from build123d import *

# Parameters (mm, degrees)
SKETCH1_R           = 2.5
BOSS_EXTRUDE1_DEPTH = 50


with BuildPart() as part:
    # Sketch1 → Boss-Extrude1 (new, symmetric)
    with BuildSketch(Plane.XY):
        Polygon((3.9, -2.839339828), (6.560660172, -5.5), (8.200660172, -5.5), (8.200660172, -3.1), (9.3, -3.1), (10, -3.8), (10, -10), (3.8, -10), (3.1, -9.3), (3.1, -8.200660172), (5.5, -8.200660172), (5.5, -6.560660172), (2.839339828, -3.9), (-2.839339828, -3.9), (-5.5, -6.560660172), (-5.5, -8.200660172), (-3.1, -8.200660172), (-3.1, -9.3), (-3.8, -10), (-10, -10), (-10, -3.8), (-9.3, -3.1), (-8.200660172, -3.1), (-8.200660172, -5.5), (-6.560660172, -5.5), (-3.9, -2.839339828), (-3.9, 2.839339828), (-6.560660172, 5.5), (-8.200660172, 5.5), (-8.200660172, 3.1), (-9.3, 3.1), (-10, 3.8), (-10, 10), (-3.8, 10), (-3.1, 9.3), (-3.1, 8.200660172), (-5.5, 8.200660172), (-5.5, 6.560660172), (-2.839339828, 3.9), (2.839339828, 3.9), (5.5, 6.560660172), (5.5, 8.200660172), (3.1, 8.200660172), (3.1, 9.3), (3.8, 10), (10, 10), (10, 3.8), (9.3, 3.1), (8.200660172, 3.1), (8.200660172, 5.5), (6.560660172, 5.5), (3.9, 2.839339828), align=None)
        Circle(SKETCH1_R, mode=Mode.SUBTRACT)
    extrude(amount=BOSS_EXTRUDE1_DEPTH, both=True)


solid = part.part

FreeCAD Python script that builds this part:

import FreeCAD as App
import Part
import Sketcher

V = App.Vector
Q = App.Units.Quantity

doc = App.newDocument("Part")
body = doc.addObject("PartDesign::Body", "Body")

# Sketch on XY plane
sketch1 = body.newObject("Sketcher::SketchObject", "Sketch")
sketch1.AttachmentSupport = (doc.getObject("XY_Plane"), [""])
sketch1.MapMode = "FlatFace"
sketch1.addGeometry(Part.LineSegment(V(6.6, -5.5, 0), V(3.9, -2.8, 0)), False)
sketch1.addGeometry(Part.LineSegment(V(3.9, -2.8, 0), V(3.9, 2.8, 0)), False)
sketch1.addGeometry(Part.LineSegment(V(3.9, 2.8, 0), V(6.6, 5.5, 0)), False)
sketch1.addGeometry(Part.LineSegment(V(6.6, 5.5, 0), V(8.2, 5.5, 0)), False)
sketch1.addGeometry(Part.LineSegment(V(8.2, 5.5, 0), V(8.2, 3.1, 0)), False)
sketch1.addGeometry(Part.LineSegment(V(8.2, 3.1, 0), V(9.3, 3.1, 0)), False)
sketch1.addGeometry(Part.LineSegment(V(9.3, 3.1, 0), V(10, 3.8, 0)), False)
sketch1.addGeometry(Part.LineSegment(V(10, 3.8, 0), V(10, 10, 0)), False)
sketch1.addGeometry(Part.LineSegment(V(10, 10, 0), V(3.8, 10, 0)), False)
sketch1.addGeometry(Part.LineSegment(V(3.8, 10, 0), V(3.1, 9.3, 0)), False)
sketch1.addGeometry(Part.LineSegment(V(3.1, 9.3, 0), V(3.1, 8.2, 0)), False)
sketch1.addGeometry(Part.LineSegment(V(3.1, 8.2, 0), V(5.5, 8.2, 0)), False)
sketch1.addGeometry(Part.LineSegment(V(5.5, 8.2, 0), V(5.5, 6.6, 0)), False)
sketch1.addGeometry(Part.LineSegment(V(5.5, 6.6, 0), V(2.8, 3.9, 0)), False)
sketch1.addGeometry(Part.LineSegment(V(2.8, 3.9, 0), V(-2.8, 3.9, 0)), False)
sketch1.addGeometry(Part.LineSegment(V(-2.8, 3.9, 0), V(-5.5, 6.6, 0)), False)
sketch1.addGeometry(Part.LineSegment(V(-5.5, 6.6, 0), V(-5.5, 8.2, 0)), False)
sketch1.addGeometry(Part.LineSegment(V(-5.5, 8.2, 0), V(-3.1, 8.2, 0)), False)
sketch1.addGeometry(Part.LineSegment(V(-3.1, 8.2, 0), V(-3.1, 9.3, 0)), False)
sketch1.addGeometry(Part.LineSegment(V(-3.1, 9.3, 0), V(-3.8, 10, 0)), False)
sketch1.addGeometry(Part.LineSegment(V(-3.8, 10, 0), V(-10, 10, 0)), False)
sketch1.addGeometry(Part.LineSegment(V(-10, 10, 0), V(-10, 3.8, 0)), False)
sketch1.addGeometry(Part.LineSegment(V(-10, 3.8, 0), V(-9.3, 3.1, 0)), False)
sketch1.addGeometry(Part.LineSegment(V(-9.3, 3.1, 0), V(-8.2, 3.1, 0)), False)
sketch1.addGeometry(Part.LineSegment(V(-8.2, 3.1, 0), V(-8.2, 5.5, 0)), False)
sketch1.addGeometry(Part.LineSegment(V(-8.2, 5.5, 0), V(-6.6, 5.5, 0)), False)
sketch1.addGeometry(Part.LineSegment(V(-6.6, 5.5, 0), V(-3.9, 2.8, 0)), False)
sketch1.addGeometry(Part.LineSegment(V(-3.9, 2.8, 0), V(-3.9, -2.8, 0)), False)
sketch1.addGeometry(Part.LineSegment(V(-3.9, -2.8, 0), V(-6.6, -5.5, 0)), False)
sketch1.addGeometry(Part.LineSegment(V(-6.6, -5.5, 0), V(-8.2, -5.5, 0)), False)
sketch1.addGeometry(Part.LineSegment(V(-8.2, -5.5, 0), V(-8.2, -3.1, 0)), False)
sketch1.addGeometry(Part.LineSegment(V(-8.2, -3.1, 0), V(-9.3, -3.1, 0)), False)
sketch1.addGeometry(Part.LineSegment(V(-9.3, -3.1, 0), V(-10, -3.8, 0)), False)
sketch1.addGeometry(Part.LineSegment(V(-10, -3.8, 0), V(-10, -10, 0)), False)
sketch1.addGeometry(Part.LineSegment(V(-10, -10, 0), V(-3.8, -10, 0)), False)
sketch1.addGeometry(Part.LineSegment(V(-3.8, -10, 0), V(-3.1, -9.3, 0)), False)
sketch1.addGeometry(Part.LineSegment(V(-3.1, -9.3, 0), V(-3.1, -8.2, 0)), False)
sketch1.addGeometry(Part.LineSegment(V(-3.1, -8.2, 0), V(-5.5, -8.2, 0)), False)
sketch1.addGeometry(Part.LineSegment(V(-5.5, -8.2, 0), V(-5.5, -6.6, 0)), False)
sketch1.addGeometry(Part.LineSegment(V(-5.5, -6.6, 0), V(-2.8, -3.9, 0)), False)
sketch1.addGeometry(Part.LineSegment(V(-2.8, -3.9, 0), V(2.8, -3.9, 0)), False)
sketch1.addGeometry(Part.LineSegment(V(2.8, -3.9, 0), V(5.5, -6.6, 0)), False)
sketch1.addGeometry(Part.LineSegment(V(5.5, -6.6, 0), V(5.5, -8.2, 0)), False)
sketch1.addGeometry(Part.LineSegment(V(5.5, -8.2, 0), V(3.1, -8.2, 0)), False)
sketch1.addGeometry(Part.LineSegment(V(3.1, -8.2, 0), V(3.1, -9.3, 0)), False)
sketch1.addGeometry(Part.LineSegment(V(3.1, -9.3, 0), V(3.8, -10, 0)), False)
sketch1.addGeometry(Part.LineSegment(V(3.8, -10, 0), V(10, -10, 0)), False)
sketch1.addGeometry(Part.LineSegment(V(10, -10, 0), V(10, -3.8, 0)), False)
sketch1.addGeometry(Part.LineSegment(V(10, -3.8, 0), V(9.3, -3.1, 0)), False)
sketch1.addGeometry(Part.LineSegment(V(9.3, -3.1, 0), V(8.2, -3.1, 0)), False)
sketch1.addGeometry(Part.LineSegment(V(8.2, -3.1, 0), V(8.2, -5.5, 0)), False)
sketch1.addGeometry(Part.LineSegment(V(8.2, -5.5, 0), V(6.6, -5.5, 0)), False)
sketch1.addGeometry(Part.Circle(V(0, 0, 0), V(0, 0, 1), 2.5), False)
sketch1.addConstraint(Sketcher.Constraint("Coincident", 0, 2, 1, 1))
sketch1.addConstraint(Sketcher.Constraint("Coincident", 1, 2, 2, 1))
sketch1.addConstraint(Sketcher.Constraint("Coincident", 2, 2, 3, 1))
sketch1.addConstraint(Sketcher.Constraint("Coincident", 3, 2, 4, 1))
sketch1.addConstraint(Sketcher.Constraint("Coincident", 4, 2, 5, 1))
sketch1.addConstraint(Sketcher.Constraint("Coincident", 5, 2, 6, 1))
sketch1.addConstraint(Sketcher.Constraint("Coincident", 6, 2, 7, 1))
sketch1.addConstraint(Sketcher.Constraint("Coincident", 7, 2, 8, 1))
sketch1.addConstraint(Sketcher.Constraint("Coincident", 8, 2, 9, 1))
sketch1.addConstraint(Sketcher.Constraint("Coincident", 9, 2, 10, 1))
sketch1.addConstraint(Sketcher.Constraint("Coincident", 10, 2, 11, 1))
sketch1.addConstraint(Sketcher.Constraint("Coincident", 11, 2, 12, 1))
sketch1.addConstraint(Sketcher.Constraint("Coincident", 12, 2, 13, 1))
sketch1.addConstraint(Sketcher.Constraint("Coincident", 13, 2, 14, 1))
sketch1.addConstraint(Sketcher.Constraint("Coincident", 14, 2, 15, 1))
sketch1.addConstraint(Sketcher.Constraint("Coincident", 15, 2, 16, 1))
sketch1.addConstraint(Sketcher.Constraint("Coincident", 16, 2, 17, 1))
sketch1.addConstraint(Sketcher.Constraint("Coincident", 17, 2, 18, 1))
sketch1.addConstraint(Sketcher.Constraint("Coincident", 18, 2, 19, 1))
sketch1.addConstraint(Sketcher.Constraint("Coincident", 19, 2, 20, 1))
sketch1.addConstraint(Sketcher.Constraint("Coincident", 20, 2, 21, 1))
sketch1.addConstraint(Sketcher.Constraint("Coincident", 21, 2, 22, 1))
sketch1.addConstraint(Sketcher.Constraint("Coincident", 22, 2, 23, 1))
sketch1.addConstraint(Sketcher.Constraint("Coincident", 23, 2, 24, 1))
sketch1.addConstraint(Sketcher.Constraint("Coincident", 24, 2, 25, 1))
sketch1.addConstraint(Sketcher.Constraint("Coincident", 25, 2, 26, 1))
sketch1.addConstraint(Sketcher.Constraint("Coincident", 26, 2, 27, 1))
sketch1.addConstraint(Sketcher.Constraint("Coincident", 27, 2, 28, 1))
sketch1.addConstraint(Sketcher.Constraint("Coincident", 28, 2, 29, 1))
sketch1.addConstraint(Sketcher.Constraint("Coincident", 29, 2, 30, 1))
sketch1.addConstraint(Sketcher.Constraint("Coincident", 30, 2, 31, 1))
sketch1.addConstraint(Sketcher.Constraint("Coincident", 31, 2, 32, 1))
sketch1.addConstraint(Sketcher.Constraint("Coincident", 32, 2, 33, 1))
sketch1.addConstraint(Sketcher.Constraint("Coincident", 33, 2, 34, 1))
sketch1.addConstraint(Sketcher.Constraint("Coincident", 34, 2, 35, 1))
sketch1.addConstraint(Sketcher.Constraint("Coincident", 35, 2, 36, 1))
sketch1.addConstraint(Sketcher.Constraint("Coincident", 36, 2, 37, 1))
sketch1.addConstraint(Sketcher.Constraint("Coincident", 37, 2, 38, 1))
sketch1.addConstraint(Sketcher.Constraint("Coincident", 38, 2, 39, 1))
sketch1.addConstraint(Sketcher.Constraint("Coincident", 39, 2, 40, 1))
sketch1.addConstraint(Sketcher.Constraint("Coincident", 40, 2, 41, 1))
sketch1.addConstraint(Sketcher.Constraint("Coincident", 41, 2, 42, 1))
sketch1.addConstraint(Sketcher.Constraint("Coincident", 42, 2, 43, 1))
sketch1.addConstraint(Sketcher.Constraint("Coincident", 43, 2, 44, 1))
sketch1.addConstraint(Sketcher.Constraint("Coincident", 44, 2, 45, 1))
sketch1.addConstraint(Sketcher.Constraint("Coincident", 45, 2, 46, 1))
sketch1.addConstraint(Sketcher.Constraint("Coincident", 46, 2, 47, 1))
sketch1.addConstraint(Sketcher.Constraint("Coincident", 47, 2, 48, 1))
sketch1.addConstraint(Sketcher.Constraint("Coincident", 48, 2, 49, 1))
sketch1.addConstraint(Sketcher.Constraint("Coincident", 49, 2, 50, 1))
sketch1.addConstraint(Sketcher.Constraint("Coincident", 50, 2, 51, 1))
sketch1.addConstraint(Sketcher.Constraint("Coincident", 51, 2, 0, 1))
sketch1.addConstraint(Sketcher.Constraint("Vertical", 1))
sketch1.addConstraint(Sketcher.Constraint("Horizontal", 3))
sketch1.addConstraint(Sketcher.Constraint("Vertical", 4))
sketch1.addConstraint(Sketcher.Constraint("Horizontal", 5))
sketch1.addConstraint(Sketcher.Constraint("Vertical", 7))
sketch1.addConstraint(Sketcher.Constraint("Horizontal", 8))
sketch1.addConstraint(Sketcher.Constraint("Vertical", 10))
sketch1.addConstraint(Sketcher.Constraint("Horizontal", 11))
sketch1.addConstraint(Sketcher.Constraint("Vertical", 12))
sketch1.addConstraint(Sketcher.Constraint("Horizontal", 14))
sketch1.addConstraint(Sketcher.Constraint("Vertical", 16))
sketch1.addConstraint(Sketcher.Constraint("Horizontal", 17))
sketch1.addConstraint(Sketcher.Constraint("Vertical", 18))
sketch1.addConstraint(Sketcher.Constraint("Horizontal", 20))
sketch1.addConstraint(Sketcher.Constraint("Vertical", 21))
sketch1.addConstraint(Sketcher.Constraint("Horizontal", 23))
sketch1.addConstraint(Sketcher.Constraint("Vertical", 24))
sketch1.addConstraint(Sketcher.Constraint("Horizontal", 25))
sketch1.addConstraint(Sketcher.Constraint("Vertical", 27))
sketch1.addConstraint(Sketcher.Constraint("Horizontal", 29))
sketch1.addConstraint(Sketcher.Constraint("Vertical", 30))
sketch1.addConstraint(Sketcher.Constraint("Horizontal", 31))
sketch1.addConstraint(Sketcher.Constraint("Vertical", 33))
sketch1.addConstraint(Sketcher.Constraint("Horizontal", 34))
sketch1.addConstraint(Sketcher.Constraint("Vertical", 36))
sketch1.addConstraint(Sketcher.Constraint("Horizontal", 37))
sketch1.addConstraint(Sketcher.Constraint("Vertical", 38))
sketch1.addConstraint(Sketcher.Constraint("Horizontal", 40))
sketch1.addConstraint(Sketcher.Constraint("Vertical", 42))
sketch1.addConstraint(Sketcher.Constraint("Horizontal", 43))
sketch1.addConstraint(Sketcher.Constraint("Vertical", 44))
sketch1.addConstraint(Sketcher.Constraint("Horizontal", 46))
sketch1.addConstraint(Sketcher.Constraint("Vertical", 47))
sketch1.addConstraint(Sketcher.Constraint("Horizontal", 49))
sketch1.addConstraint(Sketcher.Constraint("Vertical", 50))
sketch1.addConstraint(Sketcher.Constraint("Horizontal", 51))
sketch1.addConstraint(Sketcher.Constraint("Coincident", 52, 3, -1, 1))
sketch1.addConstraint(Sketcher.Constraint("Symmetric", 0, 2, 26, 2, -1, 1))
sketch1.addConstraint(Sketcher.Constraint("Symmetric", 2, 2, 28, 2, -1, 1))
sketch1.addConstraint(Sketcher.Constraint("Symmetric", 4, 2, 30, 2, -1, 1))
sketch1.addConstraint(Sketcher.Constraint("Symmetric", 6, 2, 32, 2, -1, 1))
sketch1.addConstraint(Sketcher.Constraint("Symmetric", 8, 2, 34, 2, -1, 1))
sketch1.addConstraint(Sketcher.Constraint("Symmetric", 9, 2, 35, 2, -1, 1))
sketch1.addConstraint(Sketcher.Constraint("Symmetric", 11, 2, 37, 2, -1, 1))
sketch1.addConstraint(Sketcher.Constraint("Symmetric", 13, 2, 39, 2, -1, 1))
sketch1.addConstraint(Sketcher.Constraint("Symmetric", 15, 2, 41, 2, -1, 1))
sketch1.addConstraint(Sketcher.Constraint("Symmetric", 17, 2, 43, 2, -1, 1))
sketch1.addConstraint(Sketcher.Constraint("Symmetric", 19, 2, 45, 2, -1, 1))
sketch1.addConstraint(Sketcher.Constraint("Symmetric", 21, 2, 47, 2, -1, 1))
sketch1.addConstraint(Sketcher.Constraint("Symmetric", 22, 2, 48, 2, -1, 1))
sketch1.addConstraint(Sketcher.Constraint("Symmetric", 24, 2, 50, 2, -1, 1))
sketch1.addConstraint(Sketcher.Constraint("Symmetric", 12, 2, 15, 2, -2))
sketch1.addConstraint(Sketcher.Constraint("Symmetric", 10, 2, 17, 2, -2))
sketch1.addConstraint(Sketcher.Constraint("Symmetric", 8, 2, 19, 2, -2))
sketch1.addConstraint(Sketcher.Constraint("Symmetric", 6, 2, 21, 2, -2))
sketch1.addConstraint(Sketcher.Constraint("Symmetric", 5, 2, 22, 2, -2))
sketch1.addConstraint(Sketcher.Constraint("Symmetric", 3, 2, 24, 2, -2))
sketch1.addConstraint(Sketcher.Constraint("Perpendicular", 0, 2))
sketch1.addConstraint(Sketcher.Constraint("Parallel", 2, 6))
sketch1.addConstraint(Sketcher.Constraint("Parallel", 6, 9))
sketch1.addConstraint(Sketcher.Constraint("Parallel", 9, 13))
sketch1.addConstraint(Sketcher.Constraint("Perpendicular", 13, 15))
sketch1.addConstraint(Sketcher.Constraint("Parallel", 15, 19))
sketch1.addConstraint(Sketcher.Constraint("Parallel", 19, 22))
sketch1.addConstraint(Sketcher.Constraint("Parallel", 22, 26))
sketch1.addConstraint(Sketcher.Constraint("Perpendicular", 26, 28))
sketch1.addConstraint(Sketcher.Constraint("Parallel", 28, 32))
sketch1.addConstraint(Sketcher.Constraint("Parallel", 35, 39))
sketch1.addConstraint(Sketcher.Constraint("Perpendicular", 39, 41))
sketch1.addConstraint(Sketcher.Constraint("Parallel", 41, 45))
sketch1.addConstraint(Sketcher.Constraint("Horizontal", 1, 2, 26, 2))
sketch1.addConstraint(Sketcher.Constraint("Equal", 40, 1))
sketch1.addConstraint(Sketcher.Constraint("Equal", 43, 4))
sketch1.addConstraint(Sketcher.Constraint("Equal", 46, 7))
sketch1.addConstraint(Sketcher.Constraint("Equal", 49, 10))
sketch1.addConstraint(Sketcher.Constraint("Equal", 51, 12))
sketch1.addConstraint(Sketcher.Constraint("Equal", 6, 9))
sketch1.addConstraint(Sketcher.Constraint("Equal", 2, 13))
sketch1.addConstraint(Sketcher.Constraint("Diameter", 52, Q("5 mm")))
sketch1.addConstraint(Sketcher.Constraint("DistanceX", 8, 2, 8, 1, Q("6.2 mm")))
sketch1.addConstraint(Sketcher.Constraint("DistanceX", 11, 1, 11, 2, Q("2.4 mm")))
sketch1.addConstraint(Sketcher.Constraint("DistanceX", -1, 1, 6, 2, Q("10 mm")))
sketch1.addConstraint(Sketcher.Constraint("DistanceX", 3, 1, 3, 2, Q("1.64 mm")))
sketch1.addConstraint(Sketcher.Constraint("DistanceX", -1, 1, 0, 2, Q("3.9 mm")))
sketch1.addConstraint(Sketcher.Constraint("DistanceY", -1, 1, 2, 2, Q("5.5 mm")))
sketch1.addConstraint(Sketcher.Constraint("DistanceX", 5, 1, 5, 2, Q("1.09934 mm")))
pad1 = body.newObject("PartDesign::Pad", "Pad")
pad1.Profile = sketch1
pad1.Length = 100
pad1.Midplane = True

doc.recompute()
